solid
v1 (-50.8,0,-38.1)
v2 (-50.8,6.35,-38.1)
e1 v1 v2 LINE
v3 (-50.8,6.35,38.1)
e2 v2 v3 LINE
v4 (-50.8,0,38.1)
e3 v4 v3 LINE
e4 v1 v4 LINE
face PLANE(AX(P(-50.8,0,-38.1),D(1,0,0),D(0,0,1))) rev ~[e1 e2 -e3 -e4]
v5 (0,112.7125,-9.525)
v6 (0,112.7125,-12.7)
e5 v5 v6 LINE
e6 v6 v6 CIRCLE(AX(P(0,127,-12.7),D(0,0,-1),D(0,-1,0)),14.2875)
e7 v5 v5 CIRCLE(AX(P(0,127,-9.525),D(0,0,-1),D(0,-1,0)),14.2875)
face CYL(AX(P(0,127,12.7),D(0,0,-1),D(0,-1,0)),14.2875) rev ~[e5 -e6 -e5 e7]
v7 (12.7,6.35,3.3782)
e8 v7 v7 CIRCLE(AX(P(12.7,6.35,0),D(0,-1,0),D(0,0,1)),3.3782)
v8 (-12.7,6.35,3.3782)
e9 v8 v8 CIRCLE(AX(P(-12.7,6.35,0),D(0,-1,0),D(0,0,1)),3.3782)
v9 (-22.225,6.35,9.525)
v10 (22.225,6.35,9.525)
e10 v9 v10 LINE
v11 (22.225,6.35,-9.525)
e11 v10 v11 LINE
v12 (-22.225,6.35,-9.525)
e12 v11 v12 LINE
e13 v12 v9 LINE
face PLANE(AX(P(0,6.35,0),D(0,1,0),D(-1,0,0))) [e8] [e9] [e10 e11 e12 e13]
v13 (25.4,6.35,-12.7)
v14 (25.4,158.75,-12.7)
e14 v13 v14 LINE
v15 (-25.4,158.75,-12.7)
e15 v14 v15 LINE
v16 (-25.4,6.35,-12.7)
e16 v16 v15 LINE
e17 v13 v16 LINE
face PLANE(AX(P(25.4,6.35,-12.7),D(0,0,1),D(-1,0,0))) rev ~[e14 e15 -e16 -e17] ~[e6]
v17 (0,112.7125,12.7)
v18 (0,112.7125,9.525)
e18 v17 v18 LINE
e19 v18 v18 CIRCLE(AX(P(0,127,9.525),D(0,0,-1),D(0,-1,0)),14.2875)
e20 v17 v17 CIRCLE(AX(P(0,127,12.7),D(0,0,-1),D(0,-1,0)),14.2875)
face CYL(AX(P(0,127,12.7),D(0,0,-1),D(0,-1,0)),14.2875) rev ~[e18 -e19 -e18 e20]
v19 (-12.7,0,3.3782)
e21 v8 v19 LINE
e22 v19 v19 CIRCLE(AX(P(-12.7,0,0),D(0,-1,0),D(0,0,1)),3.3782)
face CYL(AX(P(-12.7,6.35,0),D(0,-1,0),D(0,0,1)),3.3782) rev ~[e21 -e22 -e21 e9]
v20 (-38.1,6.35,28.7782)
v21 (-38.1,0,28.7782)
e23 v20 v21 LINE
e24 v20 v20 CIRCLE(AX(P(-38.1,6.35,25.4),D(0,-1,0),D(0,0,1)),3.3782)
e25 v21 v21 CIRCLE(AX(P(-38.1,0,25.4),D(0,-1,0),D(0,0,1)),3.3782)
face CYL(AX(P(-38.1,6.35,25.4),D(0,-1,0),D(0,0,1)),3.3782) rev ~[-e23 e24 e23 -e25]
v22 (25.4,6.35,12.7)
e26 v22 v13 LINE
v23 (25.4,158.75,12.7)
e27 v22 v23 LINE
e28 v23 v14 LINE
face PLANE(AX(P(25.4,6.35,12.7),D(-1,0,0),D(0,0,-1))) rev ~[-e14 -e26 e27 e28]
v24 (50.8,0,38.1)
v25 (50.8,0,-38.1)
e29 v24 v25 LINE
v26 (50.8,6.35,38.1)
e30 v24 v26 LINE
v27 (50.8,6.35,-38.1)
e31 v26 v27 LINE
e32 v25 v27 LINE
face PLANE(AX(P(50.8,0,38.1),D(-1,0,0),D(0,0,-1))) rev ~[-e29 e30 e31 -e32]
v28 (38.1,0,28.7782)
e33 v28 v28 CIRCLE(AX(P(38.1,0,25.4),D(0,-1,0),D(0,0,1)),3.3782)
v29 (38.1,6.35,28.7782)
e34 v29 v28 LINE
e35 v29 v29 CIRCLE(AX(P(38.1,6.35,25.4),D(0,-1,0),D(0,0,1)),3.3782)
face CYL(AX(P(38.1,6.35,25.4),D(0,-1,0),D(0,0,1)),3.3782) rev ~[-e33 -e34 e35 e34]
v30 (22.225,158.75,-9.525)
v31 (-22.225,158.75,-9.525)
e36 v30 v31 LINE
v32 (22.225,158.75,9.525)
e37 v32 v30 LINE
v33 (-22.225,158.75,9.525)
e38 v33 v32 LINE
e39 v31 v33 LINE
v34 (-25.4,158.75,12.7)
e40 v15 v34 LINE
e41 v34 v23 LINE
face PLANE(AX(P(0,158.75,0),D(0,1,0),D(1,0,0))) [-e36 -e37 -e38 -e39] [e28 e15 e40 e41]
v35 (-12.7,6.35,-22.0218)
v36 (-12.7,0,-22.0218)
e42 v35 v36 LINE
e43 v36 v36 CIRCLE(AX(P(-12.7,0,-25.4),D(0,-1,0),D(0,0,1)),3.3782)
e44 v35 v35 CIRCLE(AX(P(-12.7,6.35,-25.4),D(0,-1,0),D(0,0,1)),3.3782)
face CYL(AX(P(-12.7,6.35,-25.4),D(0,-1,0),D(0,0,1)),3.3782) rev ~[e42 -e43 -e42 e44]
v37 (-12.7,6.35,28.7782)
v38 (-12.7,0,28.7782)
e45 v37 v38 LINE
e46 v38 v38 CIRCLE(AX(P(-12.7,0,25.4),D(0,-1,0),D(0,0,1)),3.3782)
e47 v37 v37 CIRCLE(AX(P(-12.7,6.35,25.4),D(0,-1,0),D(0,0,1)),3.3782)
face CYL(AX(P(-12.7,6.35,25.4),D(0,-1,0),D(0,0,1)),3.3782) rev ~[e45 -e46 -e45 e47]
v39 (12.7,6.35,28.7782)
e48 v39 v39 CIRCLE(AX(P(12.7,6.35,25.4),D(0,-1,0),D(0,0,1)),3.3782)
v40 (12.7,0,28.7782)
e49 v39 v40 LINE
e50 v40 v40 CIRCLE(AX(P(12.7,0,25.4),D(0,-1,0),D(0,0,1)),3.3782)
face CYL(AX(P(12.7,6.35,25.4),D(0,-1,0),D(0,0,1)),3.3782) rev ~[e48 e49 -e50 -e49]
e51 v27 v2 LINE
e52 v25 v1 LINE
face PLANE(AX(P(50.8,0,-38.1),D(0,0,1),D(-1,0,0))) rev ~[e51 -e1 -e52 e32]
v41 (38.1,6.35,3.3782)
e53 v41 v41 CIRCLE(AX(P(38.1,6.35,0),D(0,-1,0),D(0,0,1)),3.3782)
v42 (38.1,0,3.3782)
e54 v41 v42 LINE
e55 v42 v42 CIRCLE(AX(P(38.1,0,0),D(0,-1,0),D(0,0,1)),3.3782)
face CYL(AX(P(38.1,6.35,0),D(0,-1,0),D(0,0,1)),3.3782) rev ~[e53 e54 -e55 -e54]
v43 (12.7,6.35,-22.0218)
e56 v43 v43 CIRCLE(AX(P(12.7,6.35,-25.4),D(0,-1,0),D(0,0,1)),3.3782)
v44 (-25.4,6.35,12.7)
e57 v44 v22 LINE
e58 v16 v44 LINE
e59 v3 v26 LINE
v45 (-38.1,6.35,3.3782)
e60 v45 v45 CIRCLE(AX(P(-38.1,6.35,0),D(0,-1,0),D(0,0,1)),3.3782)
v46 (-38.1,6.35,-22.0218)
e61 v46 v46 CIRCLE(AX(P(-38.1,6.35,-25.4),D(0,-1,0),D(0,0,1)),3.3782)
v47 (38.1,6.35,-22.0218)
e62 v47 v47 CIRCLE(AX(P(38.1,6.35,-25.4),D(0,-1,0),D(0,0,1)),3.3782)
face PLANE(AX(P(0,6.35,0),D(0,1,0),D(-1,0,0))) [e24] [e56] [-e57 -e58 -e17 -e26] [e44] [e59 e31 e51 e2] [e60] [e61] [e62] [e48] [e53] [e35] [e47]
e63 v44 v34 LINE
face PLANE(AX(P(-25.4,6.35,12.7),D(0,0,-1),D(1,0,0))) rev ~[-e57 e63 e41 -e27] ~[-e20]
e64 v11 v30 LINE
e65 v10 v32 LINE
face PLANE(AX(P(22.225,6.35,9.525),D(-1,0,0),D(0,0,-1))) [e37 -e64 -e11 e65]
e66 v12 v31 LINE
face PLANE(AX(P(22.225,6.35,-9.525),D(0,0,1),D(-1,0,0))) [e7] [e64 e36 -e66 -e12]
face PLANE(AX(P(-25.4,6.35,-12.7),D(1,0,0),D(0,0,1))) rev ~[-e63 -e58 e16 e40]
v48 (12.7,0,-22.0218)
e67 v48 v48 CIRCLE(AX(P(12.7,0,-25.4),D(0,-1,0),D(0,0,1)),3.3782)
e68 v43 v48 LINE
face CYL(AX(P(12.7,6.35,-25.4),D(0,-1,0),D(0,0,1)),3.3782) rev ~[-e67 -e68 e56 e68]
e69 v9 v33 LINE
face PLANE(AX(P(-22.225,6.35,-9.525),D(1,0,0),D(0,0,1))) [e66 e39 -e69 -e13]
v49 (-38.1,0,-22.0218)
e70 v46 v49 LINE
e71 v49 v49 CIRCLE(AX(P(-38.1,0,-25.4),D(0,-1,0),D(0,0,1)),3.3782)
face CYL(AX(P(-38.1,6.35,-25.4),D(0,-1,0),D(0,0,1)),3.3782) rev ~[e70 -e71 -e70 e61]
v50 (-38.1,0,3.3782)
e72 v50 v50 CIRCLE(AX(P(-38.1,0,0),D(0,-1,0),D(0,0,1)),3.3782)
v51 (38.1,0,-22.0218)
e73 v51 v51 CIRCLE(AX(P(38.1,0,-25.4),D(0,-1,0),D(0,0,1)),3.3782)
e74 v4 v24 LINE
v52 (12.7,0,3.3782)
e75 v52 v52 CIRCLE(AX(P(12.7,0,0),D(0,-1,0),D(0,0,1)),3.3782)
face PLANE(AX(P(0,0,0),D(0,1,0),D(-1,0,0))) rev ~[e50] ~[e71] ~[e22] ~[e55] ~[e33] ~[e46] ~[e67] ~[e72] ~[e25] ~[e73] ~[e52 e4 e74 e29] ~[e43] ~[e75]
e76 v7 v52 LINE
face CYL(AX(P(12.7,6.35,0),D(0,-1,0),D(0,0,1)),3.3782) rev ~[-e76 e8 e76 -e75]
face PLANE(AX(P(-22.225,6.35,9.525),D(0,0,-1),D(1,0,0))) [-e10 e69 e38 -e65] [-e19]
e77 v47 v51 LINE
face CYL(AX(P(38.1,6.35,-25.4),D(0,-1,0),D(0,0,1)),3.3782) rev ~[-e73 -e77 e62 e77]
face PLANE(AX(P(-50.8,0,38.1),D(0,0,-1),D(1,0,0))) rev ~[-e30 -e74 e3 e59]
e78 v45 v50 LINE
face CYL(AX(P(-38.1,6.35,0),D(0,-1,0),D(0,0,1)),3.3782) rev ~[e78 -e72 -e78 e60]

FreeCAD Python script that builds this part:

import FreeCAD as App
import Part
import Sketcher

V = App.Vector
Q = App.Units.Quantity

doc = App.newDocument("Part")
body = doc.addObject("PartDesign::Body", "Body")

# Sketch on XZ plane
sketch1 = body.newObject("Sketcher::SketchObject", "Sketch")
sketch1.AttachmentSupport = (doc.getObject("XZ_Plane"), [""])
sketch1.MapMode = "FlatFace"
sketch1.addGeometry([
    Part.LineSegment(V(-51, -38, 0), V(-51, 38, 0)),
    Part.LineSegment(V(-51, 38, 0), V(51, 38, 0)),
    Part.LineSegment(V(51, 38, 0), V(51, -38, 0)),
    Part.LineSegment(V(51, -38, 0), V(-51, -38, 0)),
], False)
sketch1.addConstraint([
    Sketcher.Constraint("Coincident", 0, 2, 1, 1),
    Sketcher.Constraint("Coincident", 1, 2, 2, 1),
    Sketcher.Constraint("Coincident", 2, 2, 3, 1),
    Sketcher.Constraint("Coincident", 3, 2, 0, 1),
    Sketcher.Constraint("Vertical", 0),
    Sketcher.Constraint("Horizontal", 1),
    Sketcher.Constraint("Vertical", 2),
    Sketcher.Constraint("Horizontal", 3),
    Sketcher.Constraint("Symmetric", 0, 2, 2, 2, -1, 1),
    Sketcher.Constraint("DistanceX", 1, 1, 1, 2, Q("4 in")),
    Sketcher.Constraint("DistanceY", 0, 1, 0, 2, Q("3 in")),
])
pad1 = body.newObject("PartDesign::Pad", "Pad")
pad1.Profile = sketch1
pad1.Length = Q("0.25 in")
pad1.Reversed = True

# Sketch on XZ plane
sketch2 = body.newObject("Sketcher::SketchObject", "Sketch001")
sketch2.AttachmentSupport = (doc.getObject("XZ_Plane"), [""])
sketch2.MapMode = "FlatFace"
sketch2.AttachmentOffset = App.Placement(V(0, 0, -0.25 * 25.4), App.Rotation())
sketch2.addGeometry([
    Part.LineSegment(V(-25, 13, 0), V(25, 13, 0)),  # 0
    Part.LineSegment(V(25, 13, 0), V(25, -13, 0)),  # 1
    Part.LineSegment(V(25, -13, 0), V(-25, -13, 0)),  # 2
    Part.LineSegment(V(-25, -13, 0), V(-25, 13, 0)),  # 3
    Part.LineSegment(V(22, -10, 0), V(22, 10, 0)),  # 4
    Part.LineSegment(V(22, 10, 0), V(-22, 10, 0)),  # 5
    Part.LineSegment(V(-22, 10, 0), V(-22, -10, 0)),  # 6
    Part.LineSegment(V(-22, -10, 0), V(22, -10, 0)),  # 7
], False)
sketch2.addConstraint([
    Sketcher.Constraint("Coincident", 0, 2, 1, 1),
    Sketcher.Constraint("Coincident", 1, 2, 2, 1),
    Sketcher.Constraint("Coincident", 2, 2, 3, 1),
    Sketcher.Constraint("Coincident", 3, 2, 0, 1),
    Sketcher.Constraint("Coincident", 4, 2, 5, 1),
    Sketcher.Constraint("Coincident", 5, 2, 6, 1),
    Sketcher.Constraint("Coincident", 6, 2, 7, 1),
    Sketcher.Constraint("Coincident", 7, 2, 4, 1),
    Sketcher.Constraint("Horizontal", 0),
    Sketcher.Constraint("Vertical", 1),
    Sketcher.Constraint("Horizontal", 2),
    Sketcher.Constraint("Vertical", 3),
    Sketcher.Constraint("Vertical", 4),
    Sketcher.Constraint("Horizontal", 5),
    Sketcher.Constraint("Vertical", 6),
    Sketcher.Constraint("Horizontal", 7),
    Sketcher.Constraint("Symmetric", 0, 2, 2, 2, -1, 1),
    Sketcher.Constraint("Symmetric", 4, 2, 6, 2, -1, 1),
    Sketcher.Constraint("DistanceX", 0, 1, 0, 2, Q("2 in")),
    Sketcher.Constraint("DistanceY", 1, 2, 1, 1, Q("1 in")),
    Sketcher.Constraint("DistanceX", 4, 2, 0, 2, Q("0.125 in")),
    Sketcher.Constraint("DistanceY", 4, 2, 0, 2, Q("0.125 in")),
])
pad2 = body.newObject("PartDesign::Pad", "Pad001")
pad2.Profile = sketch2
pad2.Length = Q("6 in")
pad2.Reversed = True

# Sketch on XZ plane
sketch3 = body.newObject("Sketcher::SketchObject", "Sketch002")
sketch3.AttachmentSupport = (doc.getObject("XZ_Plane"), [""])
sketch3.MapMode = "FlatFace"
sketch3.AttachmentOffset = App.Placement(V(0, 0, -0.25 * 25.4), App.Rotation())
sketch3.addGeometry([
    Part.Circle(V(-38.1, 25.4, 0), V(0, 0, 1), 3.4),  # 0
    Part.Circle(V(-12.7, 25.4, 0), V(0, 0, 1), 3.4),  # 1
    Part.Circle(V(12.7, 25.4, 0), V(0, 0, 1), 3.4),  # 2
    Part.Circle(V(38.1, 25.4, 0), V(0, 0, 1), 3.4),  # 3
    Part.Circle(V(-38.1, 0, 0), V(0, 0, 1), 3.4),  # 4
    Part.Circle(V(-12.7, 0, 0), V(0, 0, 1), 3.4),  # 5
    Part.Circle(V(12.7, 0, 0), V(0, 0, 1), 3.4),  # 6
    Part.Circle(V(38.1, 0, 0), V(0, 0, 1), 3.4),  # 7
    Part.Circle(V(-38.1, -25.4, 0), V(0, 0, 1), 3.4),  # 8
    Part.Circle(V(-12.7, -25.4, 0), V(0, 0, 1), 3.4),  # 9
    Part.Circle(V(12.7, -25.4, 0), V(0, 0, 1), 3.4),  # 10
    Part.Circle(V(38.1, -25.4, 0), V(0, 0, 1), 3.4),  # 11
], False)
sketch3.addConstraint([
    Sketcher.Constraint("Equal", 0, 1),
    Sketcher.Constraint("Equal", 1, 2),
    Sketcher.Constraint("Equal", 2, 3),
    Sketcher.Constraint("Equal", 3, 4),
    Sketcher.Constraint("Equal", 4, 5),
    Sketcher.Constraint("Equal", 5, 6),
    Sketcher.Constraint("Equal", 6, 7),
    Sketcher.Constraint("Equal", 7, 8),
    Sketcher.Constraint("Equal", 8, 9),
    Sketcher.Constraint("Equal", 9, 10),
    Sketcher.Constraint("Equal", 10, 11),
    Sketcher.Constraint("Symmetric", 5, 3, 6, 3, -1, 1),
    Sketcher.Constraint("Symmetric", 4, 3, 7, 3, -1, 1),
    Sketcher.Constraint("Symmetric", 3, 3, 8, 3, -1, 1),
    Sketcher.Constraint("Symmetric", 2, 3, 9, 3, -1, 1),
    Sketcher.Constraint("Symmetric", 1, 3, 10, 3, -1, 1),
    Sketcher.Constraint("Symmetric", 0, 3, 11, 3, -1, 1),
    Sketcher.Constraint("Symmetric", 1, 3, 2, 3, -2),
    Sketcher.Constraint("Symmetric", 0, 3, 3, 3, -2),
    Sketcher.Constraint("PointOnObject", 4, 3, -1),
    Sketcher.Constraint("PointOnObject", 5, 3, -1),
    Sketcher.Constraint("Horizontal", 0, 3, 1, 3),
    Sketcher.Constraint("Vertical", 0, 3, 4, 3),
    Sketcher.Constraint("Vertical", 1, 3, 5, 3),
    Sketcher.Constraint("Diameter", 0, Q("0.266 in")),
    Sketcher.Constraint("DistanceY", -1, 1, 0, 3, Q("1 in")),
    Sketcher.Constraint("DistanceX", 0, 3, 1, 3, Q("1 in")),
    Sketcher.Constraint("DistanceX", 1, 3, 2, 3, Q("1 in")),
])
doc.recompute()
hole = body.newObject("PartDesign::Hole", "Hole")
hole.Profile = sketch3
hole.ThreadType = "None"
hole.Diameter = Q("0.266 in")
hole.DepthType = "ThroughAll"
hole.Reversed = True

# Sketch on XY plane
sketch4 = body.newObject("Sketcher::SketchObject", "Sketch003")
sketch4.AttachmentSupport = (doc.getObject("XY_Plane"), [""])
sketch4.MapMode = "FlatFace"
sketch4.AttachmentOffset = App.Placement(V(0, 0, 0.5 * 25.4), App.Rotation())
sketch4.addGeometry(Part.Circle(V(0, 127, 0), V(0, 0, 1), 14), False)
sketch4.addConstraint([
    Sketcher.Constraint("PointOnObject", 0, 3, -2),
    Sketcher.Constraint("Diameter", 0, Q("1.125 in")),
    Sketcher.Constraint("DistanceY", -1, 1, 0, 3, Q("5 in")),
])
doc.recompute()
hole2 = body.newObject("PartDesign::Hole", "Hole001")
hole2.Profile = sketch4
hole2.ThreadType = "None"
hole2.Diameter = Q("1.125 in")
hole2.DepthType = "ThroughAll"

doc.recompute()
